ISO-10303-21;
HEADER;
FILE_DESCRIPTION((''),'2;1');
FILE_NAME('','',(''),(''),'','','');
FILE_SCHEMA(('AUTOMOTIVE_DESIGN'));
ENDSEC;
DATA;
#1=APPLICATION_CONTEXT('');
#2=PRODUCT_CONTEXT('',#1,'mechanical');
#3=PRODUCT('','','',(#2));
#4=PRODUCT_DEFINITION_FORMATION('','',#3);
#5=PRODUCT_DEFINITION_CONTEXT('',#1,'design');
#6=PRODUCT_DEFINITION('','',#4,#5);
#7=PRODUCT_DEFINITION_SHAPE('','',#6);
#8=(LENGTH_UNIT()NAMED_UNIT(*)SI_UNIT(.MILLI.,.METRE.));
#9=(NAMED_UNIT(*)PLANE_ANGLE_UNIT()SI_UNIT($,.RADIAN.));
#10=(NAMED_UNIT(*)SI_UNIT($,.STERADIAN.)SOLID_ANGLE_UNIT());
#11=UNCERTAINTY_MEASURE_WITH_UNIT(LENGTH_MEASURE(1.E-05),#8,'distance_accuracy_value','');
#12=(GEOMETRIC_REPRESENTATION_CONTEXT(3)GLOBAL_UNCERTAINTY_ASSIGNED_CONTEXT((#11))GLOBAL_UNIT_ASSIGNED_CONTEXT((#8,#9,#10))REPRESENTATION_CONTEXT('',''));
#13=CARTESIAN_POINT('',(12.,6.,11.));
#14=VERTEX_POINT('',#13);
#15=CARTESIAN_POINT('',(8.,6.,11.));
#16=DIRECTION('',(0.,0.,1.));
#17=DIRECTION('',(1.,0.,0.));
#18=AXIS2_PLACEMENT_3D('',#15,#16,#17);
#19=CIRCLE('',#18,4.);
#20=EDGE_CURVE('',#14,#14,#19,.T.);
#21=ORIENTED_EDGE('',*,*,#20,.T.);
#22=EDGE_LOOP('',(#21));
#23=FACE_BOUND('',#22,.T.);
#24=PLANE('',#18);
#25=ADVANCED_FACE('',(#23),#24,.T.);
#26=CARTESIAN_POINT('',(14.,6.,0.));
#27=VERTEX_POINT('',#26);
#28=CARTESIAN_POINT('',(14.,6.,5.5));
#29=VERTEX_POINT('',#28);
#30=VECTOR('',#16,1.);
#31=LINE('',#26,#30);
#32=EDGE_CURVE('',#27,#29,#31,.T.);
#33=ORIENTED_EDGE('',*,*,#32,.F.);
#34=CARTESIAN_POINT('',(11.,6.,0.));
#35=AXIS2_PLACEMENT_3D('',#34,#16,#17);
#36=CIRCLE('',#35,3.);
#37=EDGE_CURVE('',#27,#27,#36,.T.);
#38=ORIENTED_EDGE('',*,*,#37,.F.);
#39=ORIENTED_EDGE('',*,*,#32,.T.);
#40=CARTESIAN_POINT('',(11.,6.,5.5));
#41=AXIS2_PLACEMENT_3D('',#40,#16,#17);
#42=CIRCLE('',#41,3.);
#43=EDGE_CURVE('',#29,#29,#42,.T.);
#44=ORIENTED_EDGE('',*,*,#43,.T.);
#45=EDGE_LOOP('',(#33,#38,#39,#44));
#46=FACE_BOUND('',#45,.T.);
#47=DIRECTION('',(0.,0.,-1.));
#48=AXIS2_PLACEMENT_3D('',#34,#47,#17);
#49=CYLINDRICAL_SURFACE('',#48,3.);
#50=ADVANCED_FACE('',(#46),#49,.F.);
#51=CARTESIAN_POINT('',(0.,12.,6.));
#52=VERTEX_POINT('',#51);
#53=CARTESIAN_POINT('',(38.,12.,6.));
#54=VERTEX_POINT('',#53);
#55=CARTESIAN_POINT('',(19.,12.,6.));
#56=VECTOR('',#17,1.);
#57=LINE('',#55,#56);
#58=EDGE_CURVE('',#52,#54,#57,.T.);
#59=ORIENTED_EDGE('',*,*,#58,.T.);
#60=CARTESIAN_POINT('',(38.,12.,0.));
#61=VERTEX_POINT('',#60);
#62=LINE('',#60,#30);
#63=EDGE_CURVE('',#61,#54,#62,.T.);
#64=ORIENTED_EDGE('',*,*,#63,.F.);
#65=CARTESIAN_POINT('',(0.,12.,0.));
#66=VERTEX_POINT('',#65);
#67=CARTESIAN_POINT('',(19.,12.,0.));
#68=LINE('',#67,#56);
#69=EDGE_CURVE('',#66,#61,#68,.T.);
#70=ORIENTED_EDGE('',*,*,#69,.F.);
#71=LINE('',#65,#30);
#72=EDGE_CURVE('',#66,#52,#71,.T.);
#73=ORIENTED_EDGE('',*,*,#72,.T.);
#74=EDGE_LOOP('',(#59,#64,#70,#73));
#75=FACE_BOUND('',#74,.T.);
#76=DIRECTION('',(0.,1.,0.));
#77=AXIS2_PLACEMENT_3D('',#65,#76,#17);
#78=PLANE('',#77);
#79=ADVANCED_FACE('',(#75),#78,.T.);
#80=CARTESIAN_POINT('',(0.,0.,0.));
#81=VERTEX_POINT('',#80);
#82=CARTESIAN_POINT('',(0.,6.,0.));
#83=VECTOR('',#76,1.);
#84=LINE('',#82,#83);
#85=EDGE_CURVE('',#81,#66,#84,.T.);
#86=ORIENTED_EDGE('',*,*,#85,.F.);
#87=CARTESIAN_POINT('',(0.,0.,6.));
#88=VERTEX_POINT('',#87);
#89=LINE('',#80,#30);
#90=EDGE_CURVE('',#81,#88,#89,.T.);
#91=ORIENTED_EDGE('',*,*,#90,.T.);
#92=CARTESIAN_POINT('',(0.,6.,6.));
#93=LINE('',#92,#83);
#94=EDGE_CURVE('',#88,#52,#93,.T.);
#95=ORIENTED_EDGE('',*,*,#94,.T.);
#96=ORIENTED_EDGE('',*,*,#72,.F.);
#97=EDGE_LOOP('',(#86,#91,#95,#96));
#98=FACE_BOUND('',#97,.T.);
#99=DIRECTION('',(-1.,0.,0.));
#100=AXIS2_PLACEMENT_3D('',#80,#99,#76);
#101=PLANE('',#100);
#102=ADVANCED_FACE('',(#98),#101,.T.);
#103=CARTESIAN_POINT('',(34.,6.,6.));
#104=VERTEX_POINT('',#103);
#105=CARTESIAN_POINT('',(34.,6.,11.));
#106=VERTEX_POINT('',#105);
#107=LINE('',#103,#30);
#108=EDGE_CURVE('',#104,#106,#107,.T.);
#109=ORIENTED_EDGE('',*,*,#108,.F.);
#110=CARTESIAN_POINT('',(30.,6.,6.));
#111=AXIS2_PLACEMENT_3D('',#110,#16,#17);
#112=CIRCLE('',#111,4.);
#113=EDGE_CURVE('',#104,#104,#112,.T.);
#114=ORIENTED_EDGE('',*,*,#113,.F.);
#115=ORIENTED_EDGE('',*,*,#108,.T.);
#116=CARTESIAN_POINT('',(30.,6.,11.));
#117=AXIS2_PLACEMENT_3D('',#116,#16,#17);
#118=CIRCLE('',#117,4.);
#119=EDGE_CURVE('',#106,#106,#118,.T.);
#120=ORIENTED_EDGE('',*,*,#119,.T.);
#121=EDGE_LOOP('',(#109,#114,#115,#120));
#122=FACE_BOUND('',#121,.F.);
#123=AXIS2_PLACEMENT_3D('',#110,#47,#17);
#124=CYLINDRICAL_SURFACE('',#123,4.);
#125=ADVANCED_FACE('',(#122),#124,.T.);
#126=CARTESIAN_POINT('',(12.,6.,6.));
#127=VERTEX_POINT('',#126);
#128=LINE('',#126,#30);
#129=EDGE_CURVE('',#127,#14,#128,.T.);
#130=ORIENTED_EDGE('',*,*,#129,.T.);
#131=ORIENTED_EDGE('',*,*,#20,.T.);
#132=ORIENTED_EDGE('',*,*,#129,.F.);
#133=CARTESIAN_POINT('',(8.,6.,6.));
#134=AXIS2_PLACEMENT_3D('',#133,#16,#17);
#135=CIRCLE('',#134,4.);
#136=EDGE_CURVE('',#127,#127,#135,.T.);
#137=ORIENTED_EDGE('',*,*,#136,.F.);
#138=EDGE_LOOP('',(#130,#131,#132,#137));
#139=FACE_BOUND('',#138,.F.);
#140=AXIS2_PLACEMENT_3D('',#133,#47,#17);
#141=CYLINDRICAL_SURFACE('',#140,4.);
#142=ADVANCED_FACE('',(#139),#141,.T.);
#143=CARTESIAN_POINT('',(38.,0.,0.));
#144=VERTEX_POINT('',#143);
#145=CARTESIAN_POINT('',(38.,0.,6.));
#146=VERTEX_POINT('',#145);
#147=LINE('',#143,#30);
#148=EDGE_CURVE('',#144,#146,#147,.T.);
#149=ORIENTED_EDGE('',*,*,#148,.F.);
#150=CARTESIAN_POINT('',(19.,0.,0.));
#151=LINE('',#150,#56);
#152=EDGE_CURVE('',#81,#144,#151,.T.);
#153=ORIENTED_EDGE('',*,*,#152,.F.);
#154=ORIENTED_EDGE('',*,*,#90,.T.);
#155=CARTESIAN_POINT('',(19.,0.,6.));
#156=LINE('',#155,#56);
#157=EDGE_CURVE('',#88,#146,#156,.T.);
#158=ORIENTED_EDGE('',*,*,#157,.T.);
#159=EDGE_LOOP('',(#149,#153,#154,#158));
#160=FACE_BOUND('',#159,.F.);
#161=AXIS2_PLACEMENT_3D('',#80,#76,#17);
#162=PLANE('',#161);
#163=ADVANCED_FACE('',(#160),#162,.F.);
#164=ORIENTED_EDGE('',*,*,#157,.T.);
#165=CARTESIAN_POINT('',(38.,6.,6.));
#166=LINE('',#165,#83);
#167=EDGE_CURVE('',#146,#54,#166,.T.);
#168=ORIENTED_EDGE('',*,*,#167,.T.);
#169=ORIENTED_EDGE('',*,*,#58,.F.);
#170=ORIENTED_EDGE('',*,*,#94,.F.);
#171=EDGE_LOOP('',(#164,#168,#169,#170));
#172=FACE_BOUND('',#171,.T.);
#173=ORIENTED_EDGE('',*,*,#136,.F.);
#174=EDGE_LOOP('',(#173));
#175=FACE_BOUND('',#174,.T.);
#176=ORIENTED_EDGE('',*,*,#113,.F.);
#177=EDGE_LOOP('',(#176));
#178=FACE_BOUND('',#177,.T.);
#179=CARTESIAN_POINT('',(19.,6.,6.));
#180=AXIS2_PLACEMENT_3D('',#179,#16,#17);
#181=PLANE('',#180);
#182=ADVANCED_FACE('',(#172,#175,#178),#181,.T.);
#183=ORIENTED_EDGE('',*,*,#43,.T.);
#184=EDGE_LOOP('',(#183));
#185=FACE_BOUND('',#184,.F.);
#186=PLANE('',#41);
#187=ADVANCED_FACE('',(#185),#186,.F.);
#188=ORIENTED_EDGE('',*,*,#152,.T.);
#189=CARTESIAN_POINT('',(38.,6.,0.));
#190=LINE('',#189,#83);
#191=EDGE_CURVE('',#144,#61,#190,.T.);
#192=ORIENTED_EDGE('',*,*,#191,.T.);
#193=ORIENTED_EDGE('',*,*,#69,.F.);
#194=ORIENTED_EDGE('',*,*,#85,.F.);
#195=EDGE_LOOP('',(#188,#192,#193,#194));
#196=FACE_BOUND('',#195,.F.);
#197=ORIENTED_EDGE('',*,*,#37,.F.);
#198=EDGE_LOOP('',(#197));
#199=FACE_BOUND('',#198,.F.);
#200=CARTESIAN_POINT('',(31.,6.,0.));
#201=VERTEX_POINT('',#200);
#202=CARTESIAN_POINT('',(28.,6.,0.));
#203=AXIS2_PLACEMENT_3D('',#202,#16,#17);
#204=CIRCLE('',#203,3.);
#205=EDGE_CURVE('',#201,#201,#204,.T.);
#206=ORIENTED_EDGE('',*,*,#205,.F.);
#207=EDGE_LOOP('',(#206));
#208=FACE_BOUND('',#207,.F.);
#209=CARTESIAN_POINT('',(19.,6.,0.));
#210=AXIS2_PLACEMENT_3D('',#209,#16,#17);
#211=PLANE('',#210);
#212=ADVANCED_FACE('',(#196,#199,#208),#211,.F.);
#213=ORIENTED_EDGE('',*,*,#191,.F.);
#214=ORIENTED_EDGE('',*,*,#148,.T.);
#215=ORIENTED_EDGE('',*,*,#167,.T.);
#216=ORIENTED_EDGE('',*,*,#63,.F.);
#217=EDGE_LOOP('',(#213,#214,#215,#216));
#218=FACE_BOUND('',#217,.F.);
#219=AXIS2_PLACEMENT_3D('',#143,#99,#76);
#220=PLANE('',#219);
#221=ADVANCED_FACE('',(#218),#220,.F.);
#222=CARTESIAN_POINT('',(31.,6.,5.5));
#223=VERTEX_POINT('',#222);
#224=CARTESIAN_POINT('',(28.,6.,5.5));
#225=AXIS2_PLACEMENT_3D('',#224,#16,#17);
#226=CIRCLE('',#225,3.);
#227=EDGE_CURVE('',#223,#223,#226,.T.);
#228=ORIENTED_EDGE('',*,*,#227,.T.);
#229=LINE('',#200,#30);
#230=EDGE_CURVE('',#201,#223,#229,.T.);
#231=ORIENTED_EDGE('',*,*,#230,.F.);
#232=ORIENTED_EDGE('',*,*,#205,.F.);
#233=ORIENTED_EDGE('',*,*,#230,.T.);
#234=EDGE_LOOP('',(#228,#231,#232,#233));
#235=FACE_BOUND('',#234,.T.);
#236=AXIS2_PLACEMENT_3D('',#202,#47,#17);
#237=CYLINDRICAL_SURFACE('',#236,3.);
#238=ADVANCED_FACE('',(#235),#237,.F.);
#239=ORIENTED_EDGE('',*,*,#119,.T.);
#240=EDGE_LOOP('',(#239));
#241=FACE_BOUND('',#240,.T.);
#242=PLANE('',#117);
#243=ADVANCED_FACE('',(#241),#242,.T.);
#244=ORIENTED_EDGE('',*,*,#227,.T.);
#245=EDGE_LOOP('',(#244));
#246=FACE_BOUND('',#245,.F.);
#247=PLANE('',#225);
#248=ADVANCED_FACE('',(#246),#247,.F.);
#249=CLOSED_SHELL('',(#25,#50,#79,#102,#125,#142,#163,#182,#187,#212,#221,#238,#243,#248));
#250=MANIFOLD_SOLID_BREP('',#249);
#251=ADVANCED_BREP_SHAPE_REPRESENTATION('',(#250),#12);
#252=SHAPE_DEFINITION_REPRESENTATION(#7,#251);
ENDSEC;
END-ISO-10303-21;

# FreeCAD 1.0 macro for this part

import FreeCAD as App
import Part
import Sketcher
Q = App.Units.Quantity


def add_polygon(sketch, points):
    """Adds a closed chain of lines whose ends are joined by coincident constraints."""
    first, n = sketch.GeometryCount, len(points)
    for a, b in zip(points, points[1:] + points[:1]):
        sketch.addGeometry(Part.LineSegment(App.Vector(*a, 0), App.Vector(*b, 0)), False)
    for i in range(n):
        sketch.addConstraint(Sketcher.Constraint("Coincident", first + i, 2, first + (i + 1) % n, 1))

doc = App.newDocument("Part")
body = doc.addObject("PartDesign::Body", "Body")

# Sketch on XY plane
sketch1 = doc.addObject("Sketcher::SketchObject", "Sketch")
body.addObject(sketch1)
sketch1.AttachmentSupport = (doc.XY_Plane, [""])
sketch1.MapMode = "FlatFace"
add_polygon(sketch1, [(0, 12), (0, 0), (38, 0), (38, 12)])  # lines 0-3
sketch1.addConstraint([
    Sketcher.Constraint("Vertical", 0),
    Sketcher.Constraint("Horizontal", 1),
    Sketcher.Constraint("Vertical", 2),
    Sketcher.Constraint("Horizontal", 3),
    Sketcher.Constraint("Coincident", 0, 2, -1, 1),
    Sketcher.Constraint("DistanceX", 1, 1, 1, 2, Q("38 mm")),
    Sketcher.Constraint("DistanceY", 0, 2, 0, 1, Q("12 mm")),
])
pad1 = doc.addObject("PartDesign::Pad", "Pad")
body.addObject(pad1)
pad1.Profile = sketch1
pad1.Length = 6

# Sketch on XY plane
sketch2 = doc.addObject("Sketcher::SketchObject", "Sketch001")
body.addObject(sketch2)
sketch2.AttachmentSupport = (doc.XY_Plane, [""])
sketch2.MapMode = "FlatFace"
sketch2.AttachmentOffset = App.Placement(App.Vector(0, 0, 6), App.Rotation())
sketch2.addGeometry(Part.Circle(App.Vector(8, 6, 0), App.Vector(0, 0, 1), 4), False)
sketch2.addConstraint([
    Sketcher.Constraint("Diameter", 0, Q("8 mm")),
    Sketcher.Constraint("DistanceX", -1, 1, 0, 3, Q("8 mm")),
    Sketcher.Constraint("DistanceY", -1, 1, 0, 3, Q("6 mm")),
])
pad2 = doc.addObject("PartDesign::Pad", "Pad001")
body.addObject(pad2)
pad2.Profile = sketch2
pad2.Length = 5

# Sketch on XY plane
sketch3 = doc.addObject("Sketcher::SketchObject", "Sketch002")
body.addObject(sketch3)
sketch3.AttachmentSupport = (doc.XY_Plane, [""])
sketch3.MapMode = "FlatFace"
sketch3.AttachmentOffset = App.Placement(App.Vector(0, 0, 6), App.Rotation())
sketch3.addGeometry(Part.Circle(App.Vector(30, 6, 0), App.Vector(0, 0, 1), 4), False)
sketch3.addConstraint([
    Sketcher.Constraint("Diameter", 0, Q("8 mm")),
    Sketcher.Constraint("DistanceX", -1, 1, 0, 3, Q("30 mm")),
    Sketcher.Constraint("DistanceY", -1, 1, 0, 3, Q("6 mm")),
])
pad3 = doc.addObject("PartDesign::Pad", "Pad002")
body.addObject(pad3)
pad3.Profile = sketch3
pad3.Length = 5

# Sketch on XY plane
sketch4 = doc.addObject("Sketcher::SketchObject", "Sketch003")
body.addObject(sketch4)
sketch4.AttachmentSupport = (doc.XY_Plane, [""])
sketch4.MapMode = "FlatFace"
sketch4.addGeometry(Part.Circle(App.Vector(28, 6, 0), App.Vector(0, 0, 1), 3), False)
sketch4.addConstraint([
    Sketcher.Constraint("Diameter", 0, Q("6 mm")),
    Sketcher.Constraint("DistanceX", -1, 1, 0, 3, Q("28 mm")),
    Sketcher.Constraint("DistanceY", -1, 1, 0, 3, Q("6 mm")),
])
pocket1 = doc.addObject("PartDesign::Pocket", "Pocket")
body.addObject(pocket1)
pocket1.Profile = sketch4
pocket1.Length = 5
pocket1.Reversed = True

# Sketch on XY plane
sketch5 = doc.addObject("Sketcher::SketchObject", "Sketch004")
body.addObject(sketch5)
sketch5.AttachmentSupport = (doc.XY_Plane, [""])
sketch5.MapMode = "FlatFace"
sketch5.addGeometry([
    Part.Circle(App.Vector(28, 6, 0), App.Vector(0, 0, 1), 3),
    Part.Circle(App.Vector(11, 6, 0), App.Vector(0, 0, 1), 3),
], False)
sketch5.addConstraint([
    Sketcher.Constraint("Equal", 0, 1),
    Sketcher.Constraint("Horizontal", 0, 3, 1, 3),
    Sketcher.Constraint("Diameter", 0, Q("6 mm")),
    Sketcher.Constraint("DistanceX", -1, 1, 0, 3, Q("28 mm")),
    Sketcher.Constraint("DistanceY", -1, 1, 0, 3, Q("6 mm")),
    Sketcher.Constraint("DistanceX", -1, 1, 1, 3, Q("11 mm")),
])
pocket2 = doc.addObject("PartDesign::Pocket", "Pocket001")
body.addObject(pocket2)
pocket2.Profile = sketch5
pocket2.Length = 5.5
pocket2.Reversed = True

doc.recompute()
